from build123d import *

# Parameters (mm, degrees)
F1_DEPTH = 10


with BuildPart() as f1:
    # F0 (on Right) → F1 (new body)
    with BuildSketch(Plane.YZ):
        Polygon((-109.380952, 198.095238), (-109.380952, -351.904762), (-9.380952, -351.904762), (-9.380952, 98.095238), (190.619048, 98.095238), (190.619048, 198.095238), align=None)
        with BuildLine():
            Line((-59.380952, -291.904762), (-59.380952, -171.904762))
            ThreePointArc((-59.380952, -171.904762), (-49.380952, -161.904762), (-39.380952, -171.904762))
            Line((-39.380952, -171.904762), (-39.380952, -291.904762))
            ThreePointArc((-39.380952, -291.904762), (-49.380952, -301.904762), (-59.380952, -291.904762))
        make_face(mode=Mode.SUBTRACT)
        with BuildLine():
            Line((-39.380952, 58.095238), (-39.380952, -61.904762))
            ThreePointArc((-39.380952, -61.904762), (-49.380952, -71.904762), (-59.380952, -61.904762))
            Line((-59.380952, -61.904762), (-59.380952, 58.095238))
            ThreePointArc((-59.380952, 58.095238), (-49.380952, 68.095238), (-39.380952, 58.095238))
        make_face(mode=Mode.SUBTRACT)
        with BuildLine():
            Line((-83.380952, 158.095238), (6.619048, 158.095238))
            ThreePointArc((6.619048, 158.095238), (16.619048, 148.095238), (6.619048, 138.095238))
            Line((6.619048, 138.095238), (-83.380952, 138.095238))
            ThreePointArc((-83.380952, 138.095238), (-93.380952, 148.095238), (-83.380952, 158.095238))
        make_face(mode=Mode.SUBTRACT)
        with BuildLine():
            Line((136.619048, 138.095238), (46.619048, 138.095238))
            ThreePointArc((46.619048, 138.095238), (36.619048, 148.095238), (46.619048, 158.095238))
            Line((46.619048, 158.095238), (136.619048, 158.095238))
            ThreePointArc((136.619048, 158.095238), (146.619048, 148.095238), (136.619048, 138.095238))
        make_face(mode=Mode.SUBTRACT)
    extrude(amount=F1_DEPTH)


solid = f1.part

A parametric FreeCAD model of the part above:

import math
import FreeCAD as App
import Part
import Sketcher
Q = App.Units.Quantity

doc = App.newDocument("Part")
body = doc.addObject("PartDesign::Body", "Body")

sketch1 = body.newObject("Sketcher::SketchObject", "Sketch")
sketch1.AttachmentSupport = (doc.getObject("YZ_Plane"), [""])
sketch1.MapMode = "FlatFace"
sketch1.addGeometry([
    Part.LineSegment(App.Vector(-109.380952, 198.095238, 0), App.Vector(-109.380952, -351.904762, 0)),
    Part.LineSegment(App.Vector(-109.380952, -351.904762, 0), App.Vector(-9.380952, -351.904762, 0)),
    Part.LineSegment(App.Vector(-9.380952, -351.904762, 0), App.Vector(-9.380952, 98.095238, 0)),
    Part.LineSegment(App.Vector(-9.380952, 98.095238, 0), App.Vector(190.619048, 98.095238, 0)),
    Part.LineSegment(App.Vector(190.619048, 98.095238, 0), App.Vector(190.619048, 198.095238, 0)),
    Part.LineSegment(App.Vector(190.619048, 198.095238, 0), App.Vector(-109.380952, 198.095238, 0)),
    Part.ArcOfCircle(Part.Circle(App.Vector(-49.380952, -291.904762, 0), App.Vector(0, 0, 1), 10), math.radians(180), math.radians(360)),
    Part.LineSegment(App.Vector(-59.380952, -291.904762, 0), App.Vector(-59.380952, -171.904762, 0)),
    Part.ArcOfCircle(Part.Circle(App.Vector(-49.380952, -171.904762, 0), App.Vector(0, 0, 1), 10), math.radians(0), math.radians(180)),
    Part.LineSegment(App.Vector(-39.380952, -171.904762, 0), App.Vector(-39.380952, -291.904762, 0)),
    Part.ArcOfCircle(Part.Circle(App.Vector(-49.380952, 58.095238, 0), App.Vector(0, 0, 1), 10), math.radians(0), math.radians(180)),
    Part.LineSegment(App.Vector(-39.380952, 58.095238, 0), App.Vector(-39.380952, -61.904762, 0)),
    Part.ArcOfCircle(Part.Circle(App.Vector(-49.380952, -61.904762, 0), App.Vector(0, 0, 1), 10), math.radians(180), math.radians(360)),
    Part.LineSegment(App.Vector(-59.380952, -61.904762, 0), App.Vector(-59.380952, 58.095238, 0)),
    Part.ArcOfCircle(Part.Circle(App.Vector(-83.380952, 148.095238, 0), App.Vector(0, 0, 1), 10), math.radians(90), math.radians(270)),
    Part.LineSegment(App.Vector(-83.380952, 158.095238, 0), App.Vector(6.619048, 158.095238, 0)),
    Part.ArcOfCircle(Part.Circle(App.Vector(6.619048, 148.095238, 0), App.Vector(0, 0, 1), 10), math.radians(-90), math.radians(90)),
    Part.LineSegment(App.Vector(6.619048, 138.095238, 0), App.Vector(-83.380952, 138.095238, 0)),
    Part.ArcOfCircle(Part.Circle(App.Vector(136.619048, 148.095238, 0), App.Vector(0, 0, 1), 10), math.radians(-90), math.radians(90)),
    Part.LineSegment(App.Vector(136.619048, 138.095238, 0), App.Vector(46.619048, 138.095238, 0)),
    Part.ArcOfCircle(Part.Circle(App.Vector(46.619048, 148.095238, 0), App.Vector(0, 0, 1), 10), math.radians(90), math.radians(270)),
    Part.LineSegment(App.Vector(46.619048, 158.095238, 0), App.Vector(136.619048, 158.095238, 0)),
], False)
sketch1.addConstraint([
    Sketcher.Constraint("Coincident", 0, 2, 1, 1),
    Sketcher.Constraint("Coincident", 1, 2, 2, 1),
    Sketcher.Constraint("Coincident", 2, 2, 3, 1),
    Sketcher.Constraint("Coincident", 3, 2, 4, 1),
    Sketcher.Constraint("Coincident", 4, 2, 5, 1),
    Sketcher.Constraint("Coincident", 5, 2, 0, 1),
    Sketcher.Constraint("Tangent", 6, 1, 7, 1),
    Sketcher.Constraint("Tangent", 7, 2, 8, 2),
    Sketcher.Constraint("Tangent", 8, 1, 9, 1),
    Sketcher.Constraint("Tangent", 9, 2, 6, 2),
    Sketcher.Constraint("Tangent", 10, 1, 11, 1),
    Sketcher.Constraint("Tangent", 11, 2, 12, 2),
    Sketcher.Constraint("Tangent", 12, 1, 13, 1),
    Sketcher.Constraint("Tangent", 13, 2, 10, 2),
    Sketcher.Constraint("Tangent", 14, 1, 15, 1),
    Sketcher.Constraint("Tangent", 15, 2, 16, 2),
    Sketcher.Constraint("Tangent", 16, 1, 17, 1),
    Sketcher.Constraint("Tangent", 17, 2, 14, 2),
    Sketcher.Constraint("Tangent", 18, 1, 19, 1),
    Sketcher.Constraint("Tangent", 19, 2, 20, 2),
    Sketcher.Constraint("Tangent", 20, 1, 21, 1),
    Sketcher.Constraint("Tangent", 21, 2, 18, 2),
    Sketcher.Constraint("Vertical", 0),
    Sketcher.Constraint("Horizontal", 1),
    Sketcher.Constraint("Vertical", 2),
    Sketcher.Constraint("Horizontal", 3),
    Sketcher.Constraint("Vertical", 4),
    Sketcher.Constraint("Horizontal", 5),
    Sketcher.Constraint("Vertical", 7),
    Sketcher.Constraint("Vertical", 9),
    Sketcher.Constraint("Vertical", 11),
    Sketcher.Constraint("Vertical", 13),
    Sketcher.Constraint("Horizontal", 15),
    Sketcher.Constraint("Horizontal", 17),
    Sketcher.Constraint("Horizontal", 19),
    Sketcher.Constraint("Horizontal", 21),
    Sketcher.Constraint("Equal", 8, 10),
    Sketcher.Constraint("Equal", 12, 14),
    Sketcher.Constraint("Equal", 16, 18),
    Sketcher.Constraint("Horizontal", 16, 3, 18, 3),
    Sketcher.Constraint("Vertical", 8, 3, 10, 3),
    Sketcher.Constraint("Equal", 17, 19),
    Sketcher.Constraint("Equal", 1, 4),
    Sketcher.Constraint("Equal", 9, 11),
    Sketcher.Constraint("Radius", 6, Q("10 mm")),
    Sketcher.Constraint("DistanceX", 1, 1, 1, 2, Q("100 mm")),
    Sketcher.Constraint("DistanceX", 3, 1, 3, 2, Q("200 mm")),
    Sketcher.Constraint("DistanceX", 15, 1, 15, 2, Q("90 mm")),
    Sketcher.Constraint("DistanceY", 0, 2, 0, 1, Q("550 mm")),
    Sketcher.Constraint("DistanceY", 7, 1, 7, 2, Q("120 mm")),
    Sketcher.Constraint("DistanceY", 8, 3, 10, 3, Q("230 mm")),
    Sketcher.Constraint("DistanceX", 14, 3, 10, 3, Q("34 mm")),
    Sketcher.Constraint("DistanceY", 10, 3, 14, 3, Q("90 mm")),
    Sketcher.Constraint("DistanceX", 16, 3, 18, 3, Q("130 mm")),
    Sketcher.Constraint("DistanceX", 0, 2, 6, 3, Q("60 mm")),
    Sketcher.Constraint("DistanceY", 0, 2, 6, 3, Q("60 mm")),
    Sketcher.Constraint("DistanceY", 6, 3, -1, 1, Q("291.904762 mm")),
    Sketcher.Constraint("DistanceX", 14, 3, -1, 1, Q("83.380952 mm")),
])
pad1 = body.newObject("PartDesign::Pad", "Pad")
pad1.Profile = sketch1
pad1.Length = 10

doc.recompute()
